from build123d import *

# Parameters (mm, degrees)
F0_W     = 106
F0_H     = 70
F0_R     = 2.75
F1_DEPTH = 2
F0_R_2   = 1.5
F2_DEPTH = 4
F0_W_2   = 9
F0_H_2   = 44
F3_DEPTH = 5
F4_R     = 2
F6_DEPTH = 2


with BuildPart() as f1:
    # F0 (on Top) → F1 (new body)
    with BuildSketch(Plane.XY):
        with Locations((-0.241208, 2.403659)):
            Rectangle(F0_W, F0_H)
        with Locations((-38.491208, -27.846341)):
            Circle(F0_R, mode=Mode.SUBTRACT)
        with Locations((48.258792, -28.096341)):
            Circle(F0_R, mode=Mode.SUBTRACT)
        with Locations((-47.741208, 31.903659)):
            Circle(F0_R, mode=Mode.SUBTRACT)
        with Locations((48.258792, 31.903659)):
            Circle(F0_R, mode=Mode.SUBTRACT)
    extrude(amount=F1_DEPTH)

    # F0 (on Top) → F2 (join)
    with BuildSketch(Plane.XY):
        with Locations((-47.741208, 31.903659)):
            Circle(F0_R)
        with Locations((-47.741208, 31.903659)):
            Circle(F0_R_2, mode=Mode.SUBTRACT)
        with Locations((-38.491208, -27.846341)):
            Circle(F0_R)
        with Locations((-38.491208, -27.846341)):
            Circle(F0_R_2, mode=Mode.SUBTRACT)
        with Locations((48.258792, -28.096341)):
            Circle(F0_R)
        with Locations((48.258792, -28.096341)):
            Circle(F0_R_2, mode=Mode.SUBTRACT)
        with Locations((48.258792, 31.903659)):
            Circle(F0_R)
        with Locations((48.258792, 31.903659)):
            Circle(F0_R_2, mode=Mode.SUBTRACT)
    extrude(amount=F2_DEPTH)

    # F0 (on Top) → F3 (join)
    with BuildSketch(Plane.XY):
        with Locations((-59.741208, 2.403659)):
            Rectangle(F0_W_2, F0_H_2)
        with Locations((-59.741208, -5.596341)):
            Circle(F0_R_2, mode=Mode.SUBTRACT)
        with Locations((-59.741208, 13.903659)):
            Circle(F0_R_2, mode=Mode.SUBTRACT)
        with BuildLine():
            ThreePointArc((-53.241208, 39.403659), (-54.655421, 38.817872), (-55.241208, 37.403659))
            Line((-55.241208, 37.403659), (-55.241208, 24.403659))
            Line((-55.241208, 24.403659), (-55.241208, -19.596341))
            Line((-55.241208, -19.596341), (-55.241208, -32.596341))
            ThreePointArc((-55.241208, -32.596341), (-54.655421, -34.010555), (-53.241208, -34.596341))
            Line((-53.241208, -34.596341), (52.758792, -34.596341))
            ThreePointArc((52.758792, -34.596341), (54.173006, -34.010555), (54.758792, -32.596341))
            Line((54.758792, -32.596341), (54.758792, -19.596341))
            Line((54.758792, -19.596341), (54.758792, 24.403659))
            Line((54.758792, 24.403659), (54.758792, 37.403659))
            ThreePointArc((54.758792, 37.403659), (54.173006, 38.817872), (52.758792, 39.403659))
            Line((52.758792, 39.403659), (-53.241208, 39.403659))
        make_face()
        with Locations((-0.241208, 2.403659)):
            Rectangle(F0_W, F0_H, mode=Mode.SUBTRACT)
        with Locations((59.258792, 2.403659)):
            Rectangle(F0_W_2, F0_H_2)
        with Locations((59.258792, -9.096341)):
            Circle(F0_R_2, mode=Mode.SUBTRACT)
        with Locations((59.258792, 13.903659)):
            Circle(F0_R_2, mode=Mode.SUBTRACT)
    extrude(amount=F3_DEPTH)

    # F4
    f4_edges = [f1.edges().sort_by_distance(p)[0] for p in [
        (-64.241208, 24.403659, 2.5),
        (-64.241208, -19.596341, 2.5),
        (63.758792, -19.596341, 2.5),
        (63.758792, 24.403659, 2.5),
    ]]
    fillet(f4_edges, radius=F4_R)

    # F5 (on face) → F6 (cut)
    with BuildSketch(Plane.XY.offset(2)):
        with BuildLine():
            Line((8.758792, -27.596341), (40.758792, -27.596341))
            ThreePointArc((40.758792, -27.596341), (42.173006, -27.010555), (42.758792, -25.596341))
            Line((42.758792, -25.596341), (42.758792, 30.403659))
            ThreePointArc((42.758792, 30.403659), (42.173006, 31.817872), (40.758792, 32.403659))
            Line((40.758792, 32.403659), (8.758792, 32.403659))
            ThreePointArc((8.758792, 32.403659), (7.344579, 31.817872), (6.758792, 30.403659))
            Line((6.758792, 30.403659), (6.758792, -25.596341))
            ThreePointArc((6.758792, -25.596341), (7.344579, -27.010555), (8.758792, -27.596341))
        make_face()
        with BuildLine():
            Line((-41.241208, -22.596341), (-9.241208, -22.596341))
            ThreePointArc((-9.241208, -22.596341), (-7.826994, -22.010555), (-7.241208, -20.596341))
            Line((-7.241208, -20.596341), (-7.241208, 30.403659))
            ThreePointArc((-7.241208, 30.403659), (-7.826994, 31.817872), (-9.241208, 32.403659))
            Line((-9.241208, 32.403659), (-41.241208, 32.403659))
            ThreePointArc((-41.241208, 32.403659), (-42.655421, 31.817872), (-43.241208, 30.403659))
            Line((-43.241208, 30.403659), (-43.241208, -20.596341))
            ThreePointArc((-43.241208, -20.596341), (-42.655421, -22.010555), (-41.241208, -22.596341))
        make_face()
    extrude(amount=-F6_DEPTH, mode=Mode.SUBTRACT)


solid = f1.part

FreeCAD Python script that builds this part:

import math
import FreeCAD as App
import Part
import Sketcher
from FreeCAD import Vector


def edges_at(feature, points):
    """Names of the edges that pass closest to the given points."""
    edges = feature.Shape.Edges
    near = lambda p: min(range(len(edges)), key=lambda i: edges[i].distToShape(Part.Vertex(*p))[0])
    return sorted({f"Edge{near(p) + 1}" for p in points})


def add_polygon(sketch, points):
    """Adds a closed chain of lines whose ends are joined by coincident constraints."""
    first, n = sketch.GeometryCount, len(points)
    for a, b in zip(points, points[1:] + points[:1]):
        sketch.addGeometry(Part.LineSegment(App.Vector(*a, 0), App.Vector(*b, 0)), False)
    for i in range(n):
        sketch.addConstraint(Sketcher.Constraint("Coincident", first + i, 2, first + (i + 1) % n, 1))

doc = App.newDocument("Part")
body = doc.addObject("PartDesign::Body", "Body")

sketch1 = doc.addObject("Sketcher::SketchObject", "Sketch")
body.addObject(sketch1)
sketch1.AttachmentSupport = (doc.XY_Plane, [""])
sketch1.MapMode = "FlatFace"
add_polygon(sketch1, [(-53.2, 37.4), (-53.2, -32.6), (52.8, -32.6), (52.8, 37.4)])
sketch1.addGeometry(Part.Circle(Vector(-38.5, -27.8, 0), Vector(0, 0, 1), 2.8), False)
sketch1.addGeometry(Part.Circle(Vector(48.3, -28.1, 0), Vector(0, 0, 1), 2.8), False)
sketch1.addGeometry(Part.Circle(Vector(-47.7, 31.9, 0), Vector(0, 0, 1), 2.8), False)
sketch1.addGeometry(Part.Circle(Vector(48.3, 31.9, 0), Vector(0, 0, 1), 2.8), False)
sketch1.addConstraint([
    Sketcher.Constraint("Vertical", 0),
    Sketcher.Constraint("Horizontal", 1),
    Sketcher.Constraint("Vertical", 2),
    Sketcher.Constraint("Horizontal", 3),
    Sketcher.Constraint("Equal", 4, 5),
    Sketcher.Constraint("Equal", 5, 6),
    Sketcher.Constraint("Equal", 6, 7),
    Sketcher.Constraint("Horizontal", 6, 3, 7, 3),
    Sketcher.Constraint("Vertical", 5, 3, 7, 3),
    Sketcher.Constraint("Diameter", 4, 5.5),
    Sketcher.Constraint("DistanceX", 1, 1, 1, 2, 106.0),
    Sketcher.Constraint("DistanceY", 0, 2, 0, 1, 70.0),
    Sketcher.Constraint("DistanceX", 6, 3, 5, 3, 96.0),
    Sketcher.Constraint("DistanceY", 5, 3, 6, 3, 60.0),
    Sketcher.Constraint("DistanceX", 0, 2, 6, 3, 5.5),
    Sketcher.Constraint("DistanceY", 0, 2, 6, 3, 64.5),
    Sketcher.Constraint("DistanceX", 4, 3, 5, 3, 86.75),
    Sketcher.Constraint("DistanceY", 5, 3, 4, 3, 0.25),
    Sketcher.Constraint("DistanceY", 4, 3, -1, 1, 27.846341),
    Sketcher.Constraint("DistanceX", 4, 3, -1, 1, 38.491208),
])
pad1 = doc.addObject("PartDesign::Pad", "Pad")
body.addObject(pad1)
pad1.Profile = sketch1
pad1.Length = 2

sketch2 = doc.addObject("Sketcher::SketchObject", "Sketch001")
body.addObject(sketch2)
sketch2.AttachmentSupport = (doc.XY_Plane, [""])
sketch2.MapMode = "FlatFace"
sketch2.addGeometry([
    Part.Circle(Vector(-47.7, 31.9, 0), Vector(0, 0, 1), 2.8),
    Part.Circle(Vector(-47.7, 31.9, 0), Vector(0, 0, 1), 1.5),
    Part.Circle(Vector(-38.5, -27.8, 0), Vector(0, 0, 1), 2.8),
    Part.Circle(Vector(-38.5, -27.8, 0), Vector(0, 0, 1), 1.5),
    Part.Circle(Vector(48.3, -28.1, 0), Vector(0, 0, 1), 2.8),
    Part.Circle(Vector(48.3, -28.1, 0), Vector(0, 0, 1), 1.5),
    Part.Circle(Vector(48.3, 31.9, 0), Vector(0, 0, 1), 2.8),
    Part.Circle(Vector(48.3, 31.9, 0), Vector(0, 0, 1), 1.5),
], False)
sketch2.addConstraint([
    Sketcher.Constraint("Coincident", 1, 3, 0, 3),
    Sketcher.Constraint("Coincident", 3, 3, 2, 3),
    Sketcher.Constraint("Coincident", 5, 3, 4, 3),
    Sketcher.Constraint("Coincident", 7, 3, 6, 3),
    Sketcher.Constraint("Equal", 0, 2),
    Sketcher.Constraint("Equal", 1, 3),
    Sketcher.Constraint("Equal", 2, 4),
    Sketcher.Constraint("Equal", 3, 5),
    Sketcher.Constraint("Equal", 4, 6),
    Sketcher.Constraint("Equal", 5, 7),
    Sketcher.Constraint("Horizontal", 1, 3, 6, 3),
    Sketcher.Constraint("Vertical", 5, 3, 6, 3),
    Sketcher.Constraint("Diameter", 1, 3.0),
    Sketcher.Constraint("Diameter", 0, 5.5),
    Sketcher.Constraint("DistanceX", 0, 3, 4, 3, 96.0),
    Sketcher.Constraint("DistanceY", 4, 3, 0, 3, 60.0),
    Sketcher.Constraint("DistanceX", 0, 3, 2, 3, 9.25),
    Sketcher.Constraint("DistanceY", 2, 3, 0, 3, 59.75),
    Sketcher.Constraint("DistanceY", -1, 1, 0, 3, 31.903659),
    Sketcher.Constraint("DistanceX", 0, 3, -1, 1, 47.741208),
])
pad2 = doc.addObject("PartDesign::Pad", "Pad001")
body.addObject(pad2)
pad2.Profile = sketch2
pad2.Length = 4

sketch3 = doc.addObject("Sketcher::SketchObject", "Sketch002")
body.addObject(sketch3)
sketch3.AttachmentSupport = (doc.XY_Plane, [""])
sketch3.MapMode = "FlatFace"
sketch3.addGeometry(Part.LineSegment(Vector(-64.2, 24.4, 0), Vector(-64.2, -19.6, 0)), False)
sketch3.addGeometry(Part.LineSegment(Vector(-64.2, -19.6, 0), Vector(-55.2, -19.6, 0)), False)
sketch3.addGeometry(Part.LineSegment(Vector(-55.2, -19.6, 0), Vector(-55.2, -32.6, 0)), False)
sketch3.addGeometry(Part.ArcOfCircle(Part.Circle(Vector(-53.2, -32.6, 0), Vector(0, 0, 1), 2), math.radians(-180), math.radians(-90)), False)
sketch3.addGeometry(Part.LineSegment(Vector(-53.2, -34.6, 0), Vector(52.8, -34.6, 0)), False)
sketch3.addGeometry(Part.ArcOfCircle(Part.Circle(Vector(52.8, -32.6, 0), Vector(0, 0, 1), 2), math.radians(-90), math.radians(0)), False)
sketch3.addGeometry(Part.LineSegment(Vector(54.8, -32.6, 0), Vector(54.8, -19.6, 0)), False)
sketch3.addGeometry(Part.LineSegment(Vector(54.8, -19.6, 0), Vector(63.8, -19.6, 0)), False)
sketch3.addGeometry(Part.LineSegment(Vector(63.8, -19.6, 0), Vector(63.8, 24.4, 0)), False)
sketch3.addGeometry(Part.LineSegment(Vector(63.8, 24.4, 0), Vector(54.8, 24.4, 0)), False)
sketch3.addGeometry(Part.LineSegment(Vector(54.8, 24.4, 0), Vector(54.8, 37.4, 0)), False)
sketch3.addGeometry(Part.ArcOfCircle(Part.Circle(Vector(52.8, 37.4, 0), Vector(0, 0, 1), 2), math.radians(0), math.radians(90)), False)
sketch3.addGeometry(Part.LineSegment(Vector(52.8, 39.4, 0), Vector(-53.2, 39.4, 0)), False)
sketch3.addGeometry(Part.ArcOfCircle(Part.Circle(Vector(-53.2, 37.4, 0), Vector(0, 0, 1), 2), math.radians(90), math.radians(180)), False)
sketch3.addGeometry(Part.LineSegment(Vector(-55.2, 37.4, 0), Vector(-55.2, 24.4, 0)), False)
sketch3.addGeometry(Part.LineSegment(Vector(-55.2, 24.4, 0), Vector(-64.2, 24.4, 0)), False)
sketch3.addGeometry(Part.Circle(Vector(-59.7, -5.6, 0), Vector(0, 0, 1), 1.5), False)
sketch3.addGeometry(Part.Circle(Vector(59.3, -9.1, 0), Vector(0, 0, 1), 1.5), False)
sketch3.addGeometry(Part.Circle(Vector(-59.7, 13.9, 0), Vector(0, 0, 1), 1.5), False)
add_polygon(sketch3, [(52.8, -32.6), (-53.2, -32.6), (-53.2, 37.4), (52.8, 37.4)])
sketch3.addGeometry(Part.Circle(Vector(59.3, 13.9, 0), Vector(0, 0, 1), 1.5), False)
sketch3.addConstraint([
    Sketcher.Constraint("Coincident", 0, 2, 1, 1),
    Sketcher.Constraint("Coincident", 1, 2, 2, 1),
    Sketcher.Constraint("Tangent", 2, 2, 3, 1),
    Sketcher.Constraint("Tangent", 3, 2, 4, 1),
    Sketcher.Constraint("Tangent", 4, 2, 5, 1),
    Sketcher.Constraint("Tangent", 5, 2, 6, 1),
    Sketcher.Constraint("Coincident", 6, 2, 7, 1),
    Sketcher.Constraint("Coincident", 7, 2, 8, 1),
    Sketcher.Constraint("Coincident", 8, 2, 9, 1),
    Sketcher.Constraint("Coincident", 9, 2, 10, 1),
    Sketcher.Constraint("Tangent", 10, 2, 11, 1),
    Sketcher.Constraint("Tangent", 11, 2, 12, 1),
    Sketcher.Constraint("Tangent", 12, 2, 13, 1),
    Sketcher.Constraint("Tangent", 13, 2, 14, 1),
    Sketcher.Constraint("Coincident", 14, 2, 15, 1),
    Sketcher.Constraint("Coincident", 15, 2, 0, 1),
    Sketcher.Constraint("Vertical", 0),
    Sketcher.Constraint("Horizontal", 1),
    Sketcher.Constraint("Vertical", 2),
    Sketcher.Constraint("Horizontal", 4),
    Sketcher.Constraint("Vertical", 6),
    Sketcher.Constraint("Horizontal", 7),
    Sketcher.Constraint("Vertical", 8),
    Sketcher.Constraint("Horizontal", 9),
    Sketcher.Constraint("Vertical", 10),
    Sketcher.Constraint("Horizontal", 12),
    Sketcher.Constraint("Vertical", 14),
    Sketcher.Constraint("Horizontal", 15),
    Sketcher.Constraint("Horizontal", 19),
    Sketcher.Constraint("Vertical", 20),
    Sketcher.Constraint("Horizontal", 21),
    Sketcher.Constraint("Vertical", 22),
    Sketcher.Constraint("Coincident", 19, 2, 3, 3),
    Sketcher.Constraint("Coincident", 20, 2, 13, 3),
    Sketcher.Constraint("Coincident", 21, 2, 11, 3),
    Sketcher.Constraint("Coincident", 22, 2, 5, 3),
    Sketcher.Constraint("Equal", 5, 11),
    Sketcher.Constraint("Equal", 16, 17),
    Sketcher.Constraint("Equal", 17, 18),
    Sketcher.Constraint("Equal", 18, 23),
    Sketcher.Constraint("Horizontal", 18, 3, 23, 3),
    Sketcher.Constraint("Horizontal", 1, 2, 6, 2),
    Sketcher.Constraint("Horizontal", 9, 2, 14, 2),
    Sketcher.Constraint("Vertical", 16, 3, 18, 3),
    Sketcher.Constraint("Vertical", 17, 3, 23, 3),
    Sketcher.Constraint("Equal", 1, 7),
    Sketcher.Constraint("Equal", 6, 10),
    Sketcher.Constraint("Diameter", 16, 3.0),
    Sketcher.Constraint("Radius", 3, 2.0),
    Sketcher.Constraint("DistanceX", 1, 1, 1, 2, 9.0),
    Sketcher.Constraint("DistanceX", 4, 1, 4, 2, 106.0),
    Sketcher.Constraint("DistanceY", 0, 2, 0, 1, 44.0),
    Sketcher.Constraint("DistanceY", 2, 2, 2, 1, 13.0),
    Sketcher.Constraint("DistanceY", 3, 3, 16, 3, 27.0),
    Sketcher.Constraint("DistanceX", 16, 3, 17, 3, 119.0),
    Sketcher.Constraint("DistanceY", 17, 3, 18, 3, 23.0),
    Sketcher.Constraint("DistanceX", 16, 3, 3, 3, 6.5),
    Sketcher.Constraint("DistanceY", 5, 3, 17, 3, 23.500001),
    Sketcher.Constraint("DistanceY", 3, 3, -1, 1, 32.596341),
    Sketcher.Constraint("DistanceX", -1, 1, 11, 3, 52.758792),
])
pad3 = doc.addObject("PartDesign::Pad", "Pad002")
body.addObject(pad3)
pad3.Profile = sketch3
pad3.Length = 5
doc.recompute()

fillet = doc.addObject("PartDesign::Fillet", "Fillet")
body.addObject(fillet)
fillet.Base = (pad3, edges_at(pad3, [
    (-64.241, 24.404, 2.5),
    (-64.241, -19.596, 2.5),
    (63.759, -19.596, 2.5),
    (63.759, 24.404, 2.5),
]))
fillet.Radius = 2

sketch4 = doc.addObject("Sketcher::SketchObject", "Sketch003")
body.addObject(sketch4)
sketch4.AttachmentSupport = (doc.XY_Plane, [""])
sketch4.MapMode = "FlatFace"
sketch4.AttachmentOffset = App.Placement(Vector(0, 0, 2), App.Rotation())
sketch4.addGeometry([
    Part.LineSegment(Vector(8.8, -27.6, 0), Vector(40.8, -27.6, 0)),
    Part.ArcOfCircle(Part.Circle(Vector(40.8, -25.6, 0), Vector(0, 0, 1), 2), math.radians(-90), math.radians(0)),
    Part.LineSegment(Vector(42.8, -25.6, 0), Vector(42.8, 30.4, 0)),
    Part.ArcOfCircle(Part.Circle(Vector(40.8, 30.4, 0), Vector(0, 0, 1), 2), math.radians(0), math.radians(90)),
    Part.LineSegment(Vector(40.8, 32.4, 0), Vector(8.8, 32.4, 0)),
    Part.ArcOfCircle(Part.Circle(Vector(8.8, 30.4, 0), Vector(0, 0, 1), 2), math.radians(90), math.radians(180)),
    Part.LineSegment(Vector(6.8, 30.4, 0), Vector(6.8, -25.6, 0)),
    Part.ArcOfCircle(Part.Circle(Vector(8.8, -25.6, 0), Vector(0, 0, 1), 2), math.radians(-180), math.radians(-90)),
    Part.LineSegment(Vector(-41.2, -22.6, 0), Vector(-9.2, -22.6, 0)),
    Part.ArcOfCircle(Part.Circle(Vector(-9.2, -20.6, 0), Vector(0, 0, 1), 2), math.radians(-90), math.radians(0)),
    Part.LineSegment(Vector(-7.2, -20.6, 0), Vector(-7.2, 30.4, 0)),
    Part.ArcOfCircle(Part.Circle(Vector(-9.2, 30.4, 0), Vector(0, 0, 1), 2), math.radians(0), math.radians(90)),
    Part.LineSegment(Vector(-9.2, 32.4, 0), Vector(-41.2, 32.4, 0)),
    Part.ArcOfCircle(Part.Circle(Vector(-41.2, 30.4, 0), Vector(0, 0, 1), 2), math.radians(90), math.radians(180)),
    Part.LineSegment(Vector(-43.2, 30.4, 0), Vector(-43.2, -20.6, 0)),
    Part.ArcOfCircle(Part.Circle(Vector(-41.2, -20.6, 0), Vector(0, 0, 1), 2), math.radians(-180), math.radians(-90)),
], False)
sketch4.addConstraint([
    Sketcher.Constraint("Tangent", 0, 2, 1, 1),
    Sketcher.Constraint("Tangent", 1, 2, 2, 1),
    Sketcher.Constraint("Tangent", 2, 2, 3, 1),
    Sketcher.Constraint("Tangent", 3, 2, 4, 1),
    Sketcher.Constraint("Tangent", 4, 2, 5, 1),
    Sketcher.Constraint("Tangent", 5, 2, 6, 1),
    Sketcher.Constraint("Tangent", 6, 2, 7, 1),
    Sketcher.Constraint("Tangent", 7, 2, 0, 1),
    Sketcher.Constraint("Tangent", 8, 2, 9, 1),
    Sketcher.Constraint("Tangent", 9, 2, 10, 1),
    Sketcher.Constraint("Tangent", 10, 2, 11, 1),
    Sketcher.Constraint("Tangent", 11, 2, 12, 1),
    Sketcher.Constraint("Tangent", 12, 2, 13, 1),
    Sketcher.Constraint("Tangent", 13, 2, 14, 1),
    Sketcher.Constraint("Tangent", 14, 2, 15, 1),
    Sketcher.Constraint("Tangent", 15, 2, 8, 1),
    Sketcher.Constraint("Horizontal", 0),
    Sketcher.Constraint("Vertical", 2),
    Sketcher.Constraint("Horizontal", 4),
    Sketcher.Constraint("Vertical", 6),
    Sketcher.Constraint("Horizontal", 8),
    Sketcher.Constraint("Vertical", 10),
    Sketcher.Constraint("Horizontal", 12),
    Sketcher.Constraint("Vertical", 14),
    Sketcher.Constraint("Equal", 1, 3),
    Sketcher.Constraint("Equal", 3, 5),
    Sketcher.Constraint("Equal", 5, 7),
    Sketcher.Constraint("Equal", 7, 9),
    Sketcher.Constraint("Equal", 9, 11),
    Sketcher.Constraint("Equal", 11, 13),
    Sketcher.Constraint("Equal", 13, 15),
    Sketcher.Constraint("Horizontal", 5, 3, 11, 3),
    Sketcher.Constraint("Equal", 4, 8),
    Sketcher.Constraint("Radius", 1, 1.999999),
    Sketcher.Constraint("DistanceX", 0, 1, 0, 2, 32.0),
    Sketcher.Constraint("DistanceY", 2, 1, 2, 2, 56.0),
    Sketcher.Constraint("DistanceY", 10, 1, 10, 2, 51.0),
    Sketcher.Constraint("DistanceX", 9, 3, 7, 3, 17.999999),
    Sketcher.Constraint("DistanceX", -1, 1, 3, 3, 40.758792),
    Sketcher.Constraint("DistanceY", -1, 1, 3, 3, 30.403659),
])
pocket1 = doc.addObject("PartDesign::Pocket", "Pocket")
body.addObject(pocket1)
pocket1.Profile = sketch4
pocket1.Length = 2

doc.recompute()
